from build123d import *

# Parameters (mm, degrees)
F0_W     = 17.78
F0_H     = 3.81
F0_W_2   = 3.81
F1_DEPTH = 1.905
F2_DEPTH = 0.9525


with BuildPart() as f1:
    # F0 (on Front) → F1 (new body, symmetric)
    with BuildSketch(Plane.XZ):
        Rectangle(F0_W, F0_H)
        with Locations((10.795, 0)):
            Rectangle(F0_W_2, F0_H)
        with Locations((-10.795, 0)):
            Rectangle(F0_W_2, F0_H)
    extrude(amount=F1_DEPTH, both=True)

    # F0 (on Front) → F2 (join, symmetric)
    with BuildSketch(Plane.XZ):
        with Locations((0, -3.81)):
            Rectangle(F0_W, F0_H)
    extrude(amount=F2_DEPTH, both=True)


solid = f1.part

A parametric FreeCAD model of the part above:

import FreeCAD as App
import Part
import Sketcher
Q = App.Units.Quantity

doc = App.newDocument("Part")
body = doc.addObject("PartDesign::Body", "Body")

sketch1 = doc.addObject("Sketcher::SketchObject", "Sketch")
body.addObject(sketch1)
sketch1.AttachmentSupport = (doc.XZ_Plane, [""])
sketch1.MapMode = "FlatFace"
sketch1.addGeometry([
    Part.LineSegment(App.Vector(12.7, -1.9, 0), App.Vector(12.7, 1.9, 0)),
    Part.LineSegment(App.Vector(12.7, 1.9, 0), App.Vector(-12.7, 1.9, 0)),
    Part.LineSegment(App.Vector(-12.7, 1.9, 0), App.Vector(-12.7, -1.9, 0)),
    Part.LineSegment(App.Vector(-12.7, -1.9, 0), App.Vector(12.7, -1.9, 0)),
], False)
sketch1.addConstraint([
    Sketcher.Constraint("Coincident", 0, 2, 1, 1),
    Sketcher.Constraint("Coincident", 1, 2, 2, 1),
    Sketcher.Constraint("Coincident", 2, 2, 3, 1),
    Sketcher.Constraint("Coincident", 3, 2, 0, 1),
    Sketcher.Constraint("Vertical", 0),
    Sketcher.Constraint("Horizontal", 1),
    Sketcher.Constraint("Vertical", 2),
    Sketcher.Constraint("Horizontal", 3),
    Sketcher.Constraint("Symmetric", 0, 2, 2, 2, -1, 1),
    Sketcher.Constraint("DistanceX", 1, 2, 1, 1, Q("1 in")),
    Sketcher.Constraint("DistanceY", 0, 1, 0, 2, Q("0.15 in")),
])
pad1 = doc.addObject("PartDesign::Pad", "Pad")
body.addObject(pad1)
pad1.Profile = sketch1
pad1.Length = Q("0.15 in")
pad1.Midplane = True

sketch2 = doc.addObject("Sketcher::SketchObject", "Sketch001")
body.addObject(sketch2)
sketch2.AttachmentSupport = (doc.XZ_Plane, [""])
sketch2.MapMode = "FlatFace"
sketch2.addGeometry([
    Part.LineSegment(App.Vector(-8.9, -1.9, 0), App.Vector(-8.9, -5.7, 0)),
    Part.LineSegment(App.Vector(-8.9, -5.7, 0), App.Vector(8.9, -5.7, 0)),
    Part.LineSegment(App.Vector(8.9, -5.7, 0), App.Vector(8.9, -1.9, 0)),
    Part.LineSegment(App.Vector(8.9, -1.9, 0), App.Vector(-8.9, -1.9, 0)),
], False)
sketch2.addConstraint([
    Sketcher.Constraint("Coincident", 0, 2, 1, 1),
    Sketcher.Constraint("Coincident", 1, 2, 2, 1),
    Sketcher.Constraint("Coincident", 2, 2, 3, 1),
    Sketcher.Constraint("Coincident", 3, 2, 0, 1),
    Sketcher.Constraint("Vertical", 0),
    Sketcher.Constraint("Horizontal", 1),
    Sketcher.Constraint("Vertical", 2),
    Sketcher.Constraint("Horizontal", 3),
    Sketcher.Constraint("DistanceX", 1, 1, 1, 2, Q("0.7 in")),
    Sketcher.Constraint("DistanceY", 0, 2, 0, 1, Q("0.15 in")),
    Sketcher.Constraint("DistanceX", 0, 2, -1, 1, Q("0.35 in")),
    Sketcher.Constraint("DistanceY", 0, 2, -1, 1, Q("0.225 in")),
])
pad2 = doc.addObject("PartDesign::Pad", "Pad001")
body.addObject(pad2)
pad2.Profile = sketch2
pad2.Length = Q("0.075 in")
pad2.Midplane = True

doc.recompute()
